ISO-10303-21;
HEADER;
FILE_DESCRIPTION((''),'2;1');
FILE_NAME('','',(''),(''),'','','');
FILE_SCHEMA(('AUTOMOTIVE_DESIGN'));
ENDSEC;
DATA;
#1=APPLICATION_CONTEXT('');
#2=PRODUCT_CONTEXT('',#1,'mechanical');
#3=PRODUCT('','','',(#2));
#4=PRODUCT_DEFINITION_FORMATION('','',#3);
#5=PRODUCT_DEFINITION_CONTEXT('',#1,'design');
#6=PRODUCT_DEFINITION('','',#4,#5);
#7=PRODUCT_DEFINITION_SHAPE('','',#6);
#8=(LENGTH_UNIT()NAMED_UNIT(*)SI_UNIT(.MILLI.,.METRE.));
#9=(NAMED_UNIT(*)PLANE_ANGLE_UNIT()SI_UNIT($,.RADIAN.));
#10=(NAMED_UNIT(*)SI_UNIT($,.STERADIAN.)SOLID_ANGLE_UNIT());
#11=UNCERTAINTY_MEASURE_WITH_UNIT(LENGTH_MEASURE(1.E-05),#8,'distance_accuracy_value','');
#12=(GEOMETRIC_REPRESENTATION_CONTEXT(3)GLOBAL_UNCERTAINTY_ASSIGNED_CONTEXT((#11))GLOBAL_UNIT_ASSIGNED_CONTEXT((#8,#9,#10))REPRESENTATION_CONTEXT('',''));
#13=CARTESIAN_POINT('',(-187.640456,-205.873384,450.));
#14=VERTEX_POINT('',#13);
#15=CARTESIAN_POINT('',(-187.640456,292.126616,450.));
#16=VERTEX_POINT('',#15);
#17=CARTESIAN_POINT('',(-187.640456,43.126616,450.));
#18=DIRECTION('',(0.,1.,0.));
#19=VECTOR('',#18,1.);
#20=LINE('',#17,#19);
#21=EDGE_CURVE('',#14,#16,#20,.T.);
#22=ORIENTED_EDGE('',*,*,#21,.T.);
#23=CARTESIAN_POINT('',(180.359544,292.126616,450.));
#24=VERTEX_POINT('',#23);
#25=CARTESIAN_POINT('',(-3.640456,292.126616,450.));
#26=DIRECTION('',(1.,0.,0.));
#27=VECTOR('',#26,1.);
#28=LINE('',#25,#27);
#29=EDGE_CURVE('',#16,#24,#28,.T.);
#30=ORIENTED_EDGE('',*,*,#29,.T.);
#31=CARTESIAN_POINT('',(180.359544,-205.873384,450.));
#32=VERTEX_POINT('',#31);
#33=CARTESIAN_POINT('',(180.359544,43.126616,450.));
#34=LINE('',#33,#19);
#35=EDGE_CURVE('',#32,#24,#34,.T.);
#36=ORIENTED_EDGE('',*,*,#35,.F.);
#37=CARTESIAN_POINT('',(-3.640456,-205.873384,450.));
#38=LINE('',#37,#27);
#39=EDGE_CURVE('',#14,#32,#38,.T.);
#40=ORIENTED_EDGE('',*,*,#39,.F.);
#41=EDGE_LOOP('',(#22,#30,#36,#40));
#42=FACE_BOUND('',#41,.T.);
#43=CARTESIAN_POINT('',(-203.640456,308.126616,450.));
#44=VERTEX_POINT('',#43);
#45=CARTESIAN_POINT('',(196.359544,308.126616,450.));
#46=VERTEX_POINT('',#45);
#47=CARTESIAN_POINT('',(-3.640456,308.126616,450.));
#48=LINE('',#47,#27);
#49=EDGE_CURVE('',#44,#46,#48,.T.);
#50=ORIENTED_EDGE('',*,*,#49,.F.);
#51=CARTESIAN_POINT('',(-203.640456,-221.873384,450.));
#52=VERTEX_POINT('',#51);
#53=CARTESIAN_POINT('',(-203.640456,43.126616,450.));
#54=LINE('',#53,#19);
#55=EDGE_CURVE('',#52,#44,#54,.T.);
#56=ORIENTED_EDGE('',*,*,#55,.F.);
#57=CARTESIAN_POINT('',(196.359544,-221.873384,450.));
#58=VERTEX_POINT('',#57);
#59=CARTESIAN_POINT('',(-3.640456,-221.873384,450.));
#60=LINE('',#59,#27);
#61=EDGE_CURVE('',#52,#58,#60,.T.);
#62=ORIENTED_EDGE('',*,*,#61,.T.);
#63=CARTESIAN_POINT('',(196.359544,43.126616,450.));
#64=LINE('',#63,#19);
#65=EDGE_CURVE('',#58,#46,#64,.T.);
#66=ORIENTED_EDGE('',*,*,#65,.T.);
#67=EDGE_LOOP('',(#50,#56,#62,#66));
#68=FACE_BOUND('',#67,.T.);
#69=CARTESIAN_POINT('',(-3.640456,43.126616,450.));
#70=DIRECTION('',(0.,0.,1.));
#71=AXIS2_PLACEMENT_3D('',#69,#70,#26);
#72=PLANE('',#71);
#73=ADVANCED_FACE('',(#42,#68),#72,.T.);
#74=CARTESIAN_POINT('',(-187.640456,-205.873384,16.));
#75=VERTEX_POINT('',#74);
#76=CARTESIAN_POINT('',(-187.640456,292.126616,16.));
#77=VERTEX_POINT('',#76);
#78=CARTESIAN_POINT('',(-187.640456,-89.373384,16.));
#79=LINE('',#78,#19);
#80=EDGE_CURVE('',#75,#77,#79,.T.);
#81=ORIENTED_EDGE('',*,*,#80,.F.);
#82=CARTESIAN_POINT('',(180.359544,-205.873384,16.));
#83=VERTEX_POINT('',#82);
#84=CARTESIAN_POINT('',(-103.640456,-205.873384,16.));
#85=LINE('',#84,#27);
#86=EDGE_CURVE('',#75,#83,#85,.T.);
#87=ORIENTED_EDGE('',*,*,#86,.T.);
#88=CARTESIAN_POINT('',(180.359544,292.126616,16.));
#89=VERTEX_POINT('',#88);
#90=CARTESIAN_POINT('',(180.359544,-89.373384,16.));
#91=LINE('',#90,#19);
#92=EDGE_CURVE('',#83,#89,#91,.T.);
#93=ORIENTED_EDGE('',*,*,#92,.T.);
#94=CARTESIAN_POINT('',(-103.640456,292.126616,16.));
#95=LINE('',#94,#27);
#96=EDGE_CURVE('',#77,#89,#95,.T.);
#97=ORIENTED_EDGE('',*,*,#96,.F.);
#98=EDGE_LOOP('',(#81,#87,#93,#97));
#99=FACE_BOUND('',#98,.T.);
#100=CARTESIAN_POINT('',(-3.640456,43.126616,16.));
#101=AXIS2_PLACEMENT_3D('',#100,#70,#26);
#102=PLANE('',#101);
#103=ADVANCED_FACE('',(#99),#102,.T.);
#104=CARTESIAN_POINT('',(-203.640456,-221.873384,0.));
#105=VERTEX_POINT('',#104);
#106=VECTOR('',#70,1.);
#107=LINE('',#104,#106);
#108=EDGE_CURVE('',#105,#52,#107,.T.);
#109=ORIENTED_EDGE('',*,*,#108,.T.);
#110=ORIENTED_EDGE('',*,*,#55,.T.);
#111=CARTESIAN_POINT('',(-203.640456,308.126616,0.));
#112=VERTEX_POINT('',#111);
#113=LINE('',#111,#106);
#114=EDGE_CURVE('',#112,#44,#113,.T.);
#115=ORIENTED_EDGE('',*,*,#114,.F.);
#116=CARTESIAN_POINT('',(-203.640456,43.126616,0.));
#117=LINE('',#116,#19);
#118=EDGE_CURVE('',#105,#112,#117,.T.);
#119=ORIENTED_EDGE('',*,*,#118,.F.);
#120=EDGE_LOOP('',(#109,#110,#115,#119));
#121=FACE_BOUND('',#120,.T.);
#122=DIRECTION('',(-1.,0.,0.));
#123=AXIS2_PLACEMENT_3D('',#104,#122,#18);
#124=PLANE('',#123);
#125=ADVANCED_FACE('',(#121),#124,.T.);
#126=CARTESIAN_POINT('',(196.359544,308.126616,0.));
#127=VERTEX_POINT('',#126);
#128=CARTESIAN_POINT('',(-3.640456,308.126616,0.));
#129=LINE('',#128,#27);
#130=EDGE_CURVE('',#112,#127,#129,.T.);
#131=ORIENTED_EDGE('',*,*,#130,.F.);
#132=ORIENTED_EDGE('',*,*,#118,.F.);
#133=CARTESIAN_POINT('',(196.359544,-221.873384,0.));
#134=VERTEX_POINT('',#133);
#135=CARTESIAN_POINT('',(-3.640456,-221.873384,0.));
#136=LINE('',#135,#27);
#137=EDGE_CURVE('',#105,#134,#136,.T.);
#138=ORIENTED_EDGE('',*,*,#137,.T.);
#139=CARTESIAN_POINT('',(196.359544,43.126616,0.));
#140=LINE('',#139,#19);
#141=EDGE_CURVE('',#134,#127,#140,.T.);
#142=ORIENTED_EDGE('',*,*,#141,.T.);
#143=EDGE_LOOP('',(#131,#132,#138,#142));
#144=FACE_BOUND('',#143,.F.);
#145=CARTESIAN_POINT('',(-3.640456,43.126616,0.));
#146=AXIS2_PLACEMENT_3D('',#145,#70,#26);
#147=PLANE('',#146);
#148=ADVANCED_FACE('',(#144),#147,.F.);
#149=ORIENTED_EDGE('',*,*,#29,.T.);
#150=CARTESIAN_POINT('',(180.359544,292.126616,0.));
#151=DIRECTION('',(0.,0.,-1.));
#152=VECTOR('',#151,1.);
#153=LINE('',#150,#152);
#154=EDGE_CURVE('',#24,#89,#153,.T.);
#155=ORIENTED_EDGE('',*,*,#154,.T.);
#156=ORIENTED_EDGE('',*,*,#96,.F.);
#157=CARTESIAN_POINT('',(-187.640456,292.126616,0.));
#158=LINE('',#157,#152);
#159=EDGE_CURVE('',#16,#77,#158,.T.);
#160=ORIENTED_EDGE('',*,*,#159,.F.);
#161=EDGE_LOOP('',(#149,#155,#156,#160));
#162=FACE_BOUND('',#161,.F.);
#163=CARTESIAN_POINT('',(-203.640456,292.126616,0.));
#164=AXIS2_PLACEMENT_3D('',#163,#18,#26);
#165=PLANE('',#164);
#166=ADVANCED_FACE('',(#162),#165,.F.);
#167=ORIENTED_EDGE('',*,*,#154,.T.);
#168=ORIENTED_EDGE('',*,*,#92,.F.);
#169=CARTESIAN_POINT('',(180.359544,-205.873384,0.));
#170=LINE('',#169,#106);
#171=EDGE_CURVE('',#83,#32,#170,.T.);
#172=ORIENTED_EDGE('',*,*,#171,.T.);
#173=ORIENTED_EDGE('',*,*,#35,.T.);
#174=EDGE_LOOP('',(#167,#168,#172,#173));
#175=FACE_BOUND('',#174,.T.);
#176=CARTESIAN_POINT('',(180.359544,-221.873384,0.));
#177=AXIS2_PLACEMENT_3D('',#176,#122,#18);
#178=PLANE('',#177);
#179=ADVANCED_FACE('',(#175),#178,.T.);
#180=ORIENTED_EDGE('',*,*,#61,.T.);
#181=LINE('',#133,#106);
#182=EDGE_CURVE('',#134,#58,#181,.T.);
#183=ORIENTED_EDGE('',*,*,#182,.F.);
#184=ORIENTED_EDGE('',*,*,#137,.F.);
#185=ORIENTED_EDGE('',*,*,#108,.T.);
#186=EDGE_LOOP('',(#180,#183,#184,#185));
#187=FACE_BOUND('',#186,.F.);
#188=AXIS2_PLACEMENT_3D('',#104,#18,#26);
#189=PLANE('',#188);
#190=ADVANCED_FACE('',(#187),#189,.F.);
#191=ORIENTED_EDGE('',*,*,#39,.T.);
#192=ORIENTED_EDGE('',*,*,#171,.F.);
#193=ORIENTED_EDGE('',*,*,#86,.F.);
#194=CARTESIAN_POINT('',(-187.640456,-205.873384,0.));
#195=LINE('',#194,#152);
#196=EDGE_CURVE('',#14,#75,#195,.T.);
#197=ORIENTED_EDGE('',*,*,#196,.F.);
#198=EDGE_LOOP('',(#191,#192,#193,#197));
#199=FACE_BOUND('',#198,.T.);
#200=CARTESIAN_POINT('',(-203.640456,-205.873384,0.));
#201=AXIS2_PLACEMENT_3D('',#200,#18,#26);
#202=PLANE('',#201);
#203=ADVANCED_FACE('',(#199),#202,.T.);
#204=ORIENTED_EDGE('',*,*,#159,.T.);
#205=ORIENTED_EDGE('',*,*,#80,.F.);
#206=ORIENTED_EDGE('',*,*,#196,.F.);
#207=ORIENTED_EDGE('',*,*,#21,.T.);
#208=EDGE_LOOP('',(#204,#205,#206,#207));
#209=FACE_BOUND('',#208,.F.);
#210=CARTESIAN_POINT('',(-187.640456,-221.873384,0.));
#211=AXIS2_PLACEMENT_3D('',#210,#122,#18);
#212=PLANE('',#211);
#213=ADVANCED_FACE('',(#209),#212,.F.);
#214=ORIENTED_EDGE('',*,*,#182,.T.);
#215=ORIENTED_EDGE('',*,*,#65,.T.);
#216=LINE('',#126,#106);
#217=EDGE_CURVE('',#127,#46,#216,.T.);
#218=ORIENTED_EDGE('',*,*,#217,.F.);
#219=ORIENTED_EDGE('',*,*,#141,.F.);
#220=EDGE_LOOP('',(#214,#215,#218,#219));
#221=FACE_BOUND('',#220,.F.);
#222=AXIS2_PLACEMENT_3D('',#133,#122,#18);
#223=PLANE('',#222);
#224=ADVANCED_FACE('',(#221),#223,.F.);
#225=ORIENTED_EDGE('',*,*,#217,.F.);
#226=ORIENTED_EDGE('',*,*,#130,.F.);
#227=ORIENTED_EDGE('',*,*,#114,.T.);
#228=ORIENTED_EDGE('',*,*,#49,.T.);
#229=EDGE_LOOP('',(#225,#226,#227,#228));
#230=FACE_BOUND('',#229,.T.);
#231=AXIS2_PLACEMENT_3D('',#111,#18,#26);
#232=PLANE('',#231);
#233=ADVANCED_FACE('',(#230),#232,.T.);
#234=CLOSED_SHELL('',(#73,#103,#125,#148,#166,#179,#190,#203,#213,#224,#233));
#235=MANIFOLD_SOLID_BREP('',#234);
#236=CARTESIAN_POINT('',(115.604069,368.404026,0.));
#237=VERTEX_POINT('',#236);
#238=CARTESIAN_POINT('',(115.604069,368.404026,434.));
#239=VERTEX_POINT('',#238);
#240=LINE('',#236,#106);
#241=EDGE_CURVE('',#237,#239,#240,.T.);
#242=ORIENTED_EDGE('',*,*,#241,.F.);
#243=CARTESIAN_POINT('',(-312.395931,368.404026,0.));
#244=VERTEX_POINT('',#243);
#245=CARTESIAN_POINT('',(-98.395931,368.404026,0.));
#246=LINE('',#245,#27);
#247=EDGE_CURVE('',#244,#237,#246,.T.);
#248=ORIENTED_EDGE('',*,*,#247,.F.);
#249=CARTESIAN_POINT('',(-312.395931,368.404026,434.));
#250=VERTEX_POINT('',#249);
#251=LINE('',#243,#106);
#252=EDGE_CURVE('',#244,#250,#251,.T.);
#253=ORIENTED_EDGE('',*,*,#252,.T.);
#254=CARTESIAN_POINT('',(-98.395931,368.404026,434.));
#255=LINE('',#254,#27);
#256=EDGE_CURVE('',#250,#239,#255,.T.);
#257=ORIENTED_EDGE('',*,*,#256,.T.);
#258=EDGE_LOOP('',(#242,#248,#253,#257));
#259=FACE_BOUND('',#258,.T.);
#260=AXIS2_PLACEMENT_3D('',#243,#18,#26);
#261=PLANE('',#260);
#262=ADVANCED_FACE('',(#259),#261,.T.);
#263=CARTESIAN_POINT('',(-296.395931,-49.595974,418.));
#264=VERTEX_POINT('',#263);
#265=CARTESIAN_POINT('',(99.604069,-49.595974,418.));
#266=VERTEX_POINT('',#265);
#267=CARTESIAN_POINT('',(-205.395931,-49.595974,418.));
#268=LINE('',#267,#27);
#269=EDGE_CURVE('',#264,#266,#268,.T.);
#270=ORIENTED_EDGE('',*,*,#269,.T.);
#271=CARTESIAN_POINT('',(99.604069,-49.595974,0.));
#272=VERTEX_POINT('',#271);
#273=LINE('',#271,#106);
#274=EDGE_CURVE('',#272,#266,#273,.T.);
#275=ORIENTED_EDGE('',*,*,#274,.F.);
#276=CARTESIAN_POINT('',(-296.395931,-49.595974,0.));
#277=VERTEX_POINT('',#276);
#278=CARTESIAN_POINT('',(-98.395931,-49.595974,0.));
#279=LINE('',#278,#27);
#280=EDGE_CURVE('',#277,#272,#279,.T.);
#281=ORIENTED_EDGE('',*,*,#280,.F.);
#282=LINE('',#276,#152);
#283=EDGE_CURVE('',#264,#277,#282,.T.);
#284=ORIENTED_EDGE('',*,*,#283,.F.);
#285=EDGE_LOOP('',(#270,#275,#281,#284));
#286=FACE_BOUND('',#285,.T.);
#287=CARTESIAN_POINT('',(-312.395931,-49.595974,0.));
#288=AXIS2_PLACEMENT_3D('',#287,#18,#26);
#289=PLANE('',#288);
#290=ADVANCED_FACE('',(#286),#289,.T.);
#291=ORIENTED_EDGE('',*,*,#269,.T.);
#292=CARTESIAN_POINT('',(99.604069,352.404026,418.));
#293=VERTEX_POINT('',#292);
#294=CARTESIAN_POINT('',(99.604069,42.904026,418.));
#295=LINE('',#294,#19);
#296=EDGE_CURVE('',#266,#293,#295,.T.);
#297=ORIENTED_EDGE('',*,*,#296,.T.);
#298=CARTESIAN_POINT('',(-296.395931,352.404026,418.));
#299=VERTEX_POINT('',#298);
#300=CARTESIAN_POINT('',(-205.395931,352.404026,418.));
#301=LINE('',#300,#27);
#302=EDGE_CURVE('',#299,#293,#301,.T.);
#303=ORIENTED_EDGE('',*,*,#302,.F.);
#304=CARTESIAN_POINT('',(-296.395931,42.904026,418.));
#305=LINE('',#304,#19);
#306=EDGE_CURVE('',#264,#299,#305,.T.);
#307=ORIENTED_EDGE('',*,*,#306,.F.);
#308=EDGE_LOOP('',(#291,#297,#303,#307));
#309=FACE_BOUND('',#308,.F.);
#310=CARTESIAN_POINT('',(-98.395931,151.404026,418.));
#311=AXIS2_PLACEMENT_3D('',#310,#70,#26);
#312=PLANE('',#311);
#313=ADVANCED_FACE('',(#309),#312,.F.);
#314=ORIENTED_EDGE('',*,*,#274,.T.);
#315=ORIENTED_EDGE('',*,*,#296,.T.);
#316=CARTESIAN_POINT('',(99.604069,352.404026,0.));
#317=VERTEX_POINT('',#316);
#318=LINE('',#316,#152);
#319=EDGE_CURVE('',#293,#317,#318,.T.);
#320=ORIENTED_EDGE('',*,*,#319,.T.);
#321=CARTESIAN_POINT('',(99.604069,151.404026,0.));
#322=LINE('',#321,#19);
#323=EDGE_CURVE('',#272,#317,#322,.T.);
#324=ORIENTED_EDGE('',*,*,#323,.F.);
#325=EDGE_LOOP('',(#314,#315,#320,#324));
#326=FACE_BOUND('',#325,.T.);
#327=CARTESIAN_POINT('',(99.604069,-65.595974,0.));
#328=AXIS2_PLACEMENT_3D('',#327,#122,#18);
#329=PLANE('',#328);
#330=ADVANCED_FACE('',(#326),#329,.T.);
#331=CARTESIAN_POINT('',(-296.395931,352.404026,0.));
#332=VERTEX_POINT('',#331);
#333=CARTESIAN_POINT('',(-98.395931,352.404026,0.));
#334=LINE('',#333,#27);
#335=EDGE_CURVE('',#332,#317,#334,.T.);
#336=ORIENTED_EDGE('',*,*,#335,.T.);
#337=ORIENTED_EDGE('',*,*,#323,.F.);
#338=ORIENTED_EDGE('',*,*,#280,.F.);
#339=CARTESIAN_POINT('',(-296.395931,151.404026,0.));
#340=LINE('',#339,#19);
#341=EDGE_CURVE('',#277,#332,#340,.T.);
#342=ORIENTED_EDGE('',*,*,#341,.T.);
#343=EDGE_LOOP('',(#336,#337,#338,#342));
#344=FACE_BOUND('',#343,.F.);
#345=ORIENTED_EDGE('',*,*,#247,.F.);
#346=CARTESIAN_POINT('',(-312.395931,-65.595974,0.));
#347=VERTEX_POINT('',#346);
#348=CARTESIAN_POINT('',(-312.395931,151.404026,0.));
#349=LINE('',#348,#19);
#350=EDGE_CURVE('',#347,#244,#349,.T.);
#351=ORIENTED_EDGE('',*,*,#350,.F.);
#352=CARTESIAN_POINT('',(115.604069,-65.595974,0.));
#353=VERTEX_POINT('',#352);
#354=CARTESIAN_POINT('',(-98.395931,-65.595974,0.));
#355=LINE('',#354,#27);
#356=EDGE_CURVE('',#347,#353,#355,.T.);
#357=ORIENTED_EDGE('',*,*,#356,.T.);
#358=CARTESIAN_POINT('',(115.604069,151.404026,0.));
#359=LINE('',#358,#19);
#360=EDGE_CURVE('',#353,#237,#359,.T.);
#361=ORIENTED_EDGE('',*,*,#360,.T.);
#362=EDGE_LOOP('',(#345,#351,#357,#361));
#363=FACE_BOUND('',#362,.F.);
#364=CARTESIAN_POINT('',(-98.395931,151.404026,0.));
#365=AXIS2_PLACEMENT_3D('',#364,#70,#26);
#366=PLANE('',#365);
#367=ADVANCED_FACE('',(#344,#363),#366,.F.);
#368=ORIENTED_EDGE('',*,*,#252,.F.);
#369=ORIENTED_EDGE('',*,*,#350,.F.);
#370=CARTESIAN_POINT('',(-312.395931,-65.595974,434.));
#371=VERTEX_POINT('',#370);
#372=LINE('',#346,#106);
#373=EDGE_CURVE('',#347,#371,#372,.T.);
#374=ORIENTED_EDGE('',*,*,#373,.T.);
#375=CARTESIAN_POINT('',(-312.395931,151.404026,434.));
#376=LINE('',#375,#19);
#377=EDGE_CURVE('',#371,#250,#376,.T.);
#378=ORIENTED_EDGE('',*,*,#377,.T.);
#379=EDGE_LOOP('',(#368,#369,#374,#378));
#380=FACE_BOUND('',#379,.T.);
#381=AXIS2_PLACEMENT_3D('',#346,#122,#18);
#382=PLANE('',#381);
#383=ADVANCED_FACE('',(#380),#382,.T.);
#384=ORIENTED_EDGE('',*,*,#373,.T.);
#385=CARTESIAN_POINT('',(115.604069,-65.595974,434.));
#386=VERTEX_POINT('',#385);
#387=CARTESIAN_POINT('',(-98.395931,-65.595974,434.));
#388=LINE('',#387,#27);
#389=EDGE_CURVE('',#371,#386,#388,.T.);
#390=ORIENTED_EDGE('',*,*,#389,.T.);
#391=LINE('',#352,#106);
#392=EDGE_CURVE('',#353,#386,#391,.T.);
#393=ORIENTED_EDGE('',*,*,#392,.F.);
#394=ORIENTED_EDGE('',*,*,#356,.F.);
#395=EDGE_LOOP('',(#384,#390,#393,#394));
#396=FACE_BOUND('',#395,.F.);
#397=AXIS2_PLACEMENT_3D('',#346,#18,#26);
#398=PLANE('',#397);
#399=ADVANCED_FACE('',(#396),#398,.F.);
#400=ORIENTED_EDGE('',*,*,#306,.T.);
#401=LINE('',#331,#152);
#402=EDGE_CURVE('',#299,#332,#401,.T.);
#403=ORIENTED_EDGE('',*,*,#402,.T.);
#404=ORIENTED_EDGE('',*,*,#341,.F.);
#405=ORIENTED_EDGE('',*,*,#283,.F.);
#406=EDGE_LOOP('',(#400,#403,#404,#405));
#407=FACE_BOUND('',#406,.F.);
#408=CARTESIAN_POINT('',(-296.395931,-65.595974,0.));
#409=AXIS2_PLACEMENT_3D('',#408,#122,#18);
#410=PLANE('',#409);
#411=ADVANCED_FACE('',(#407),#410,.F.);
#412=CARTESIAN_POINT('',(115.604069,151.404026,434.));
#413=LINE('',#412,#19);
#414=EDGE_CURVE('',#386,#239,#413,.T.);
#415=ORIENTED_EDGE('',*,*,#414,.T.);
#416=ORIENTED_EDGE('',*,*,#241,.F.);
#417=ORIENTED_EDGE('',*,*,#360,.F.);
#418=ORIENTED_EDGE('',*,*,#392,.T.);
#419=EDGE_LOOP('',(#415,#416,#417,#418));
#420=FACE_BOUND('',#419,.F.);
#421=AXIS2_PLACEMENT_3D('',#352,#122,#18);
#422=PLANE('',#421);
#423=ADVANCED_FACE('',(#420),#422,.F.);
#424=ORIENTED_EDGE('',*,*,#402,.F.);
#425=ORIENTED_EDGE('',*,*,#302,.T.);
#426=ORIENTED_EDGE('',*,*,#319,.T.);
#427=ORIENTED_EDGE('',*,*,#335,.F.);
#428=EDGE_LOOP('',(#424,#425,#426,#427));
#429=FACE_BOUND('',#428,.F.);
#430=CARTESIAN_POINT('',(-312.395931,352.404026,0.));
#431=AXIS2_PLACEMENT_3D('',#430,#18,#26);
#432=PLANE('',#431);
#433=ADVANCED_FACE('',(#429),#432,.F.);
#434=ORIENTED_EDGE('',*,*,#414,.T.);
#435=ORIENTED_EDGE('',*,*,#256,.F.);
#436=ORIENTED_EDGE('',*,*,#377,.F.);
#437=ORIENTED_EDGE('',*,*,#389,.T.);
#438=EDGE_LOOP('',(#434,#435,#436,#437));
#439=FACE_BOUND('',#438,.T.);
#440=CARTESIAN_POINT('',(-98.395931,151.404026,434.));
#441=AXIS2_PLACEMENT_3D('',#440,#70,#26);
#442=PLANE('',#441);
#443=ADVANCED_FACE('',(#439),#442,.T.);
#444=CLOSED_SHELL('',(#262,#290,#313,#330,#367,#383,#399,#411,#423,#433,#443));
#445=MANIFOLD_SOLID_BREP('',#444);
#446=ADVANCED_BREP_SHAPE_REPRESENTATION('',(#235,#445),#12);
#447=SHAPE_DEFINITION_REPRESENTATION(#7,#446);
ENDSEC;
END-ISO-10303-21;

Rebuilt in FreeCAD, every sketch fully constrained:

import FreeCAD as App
import Part
import Sketcher

V = App.Vector


def faces_at(feature, points):
    """Names of the faces that lie closest to the given points."""
    faces = feature.Shape.Faces
    near = lambda p: min(range(len(faces)), key=lambda i: faces[i].distToShape(Part.Vertex(*p))[0])
    return sorted({f"Face{near(p) + 1}" for p in points})

doc = App.newDocument("Part")
body = doc.addObject("PartDesign::Body", "Body")

# Sketch on XY plane
sketch1 = body.newObject("Sketcher::SketchObject", "Sketch")
sketch1.AttachmentSupport = (doc.getObject("XY_Plane"), [""])
sketch1.MapMode = "FlatFace"
sketch1.addGeometry(Part.LineSegment(V(-204, 308, 0), V(-204, -222, 0)), False)
sketch1.addGeometry(Part.LineSegment(V(-204, -222, 0), V(196, -222, 0)), False)
sketch1.addGeometry(Part.LineSegment(V(196, -222, 0), V(196, 308, 0)), False)
sketch1.addGeometry(Part.LineSegment(V(196, 308, 0), V(-204, 308, 0)), False)
sketch1.addConstraint(Sketcher.Constraint("Coincident", 0, 2, 1, 1))
sketch1.addConstraint(Sketcher.Constraint("Coincident", 1, 2, 2, 1))
sketch1.addConstraint(Sketcher.Constraint("Coincident", 2, 2, 3, 1))
sketch1.addConstraint(Sketcher.Constraint("Coincident", 3, 2, 0, 1))
sketch1.addConstraint(Sketcher.Constraint("Vertical", 0))
sketch1.addConstraint(Sketcher.Constraint("Horizontal", 1))
sketch1.addConstraint(Sketcher.Constraint("Vertical", 2))
sketch1.addConstraint(Sketcher.Constraint("Horizontal", 3))
sketch1.addConstraint(Sketcher.Constraint("DistanceX", 1, 1, 1, 2, 400.0))
sketch1.addConstraint(Sketcher.Constraint("DistanceY", 0, 2, 0, 1, 530.0))
sketch1.addConstraint(Sketcher.Constraint("DistanceX", 0, 2, -1, 1, 203.640456))
sketch1.addConstraint(Sketcher.Constraint("DistanceY", 0, 2, -1, 1, 221.873384))
pad1 = body.newObject("PartDesign::Pad", "Pad")
pad1.Profile = sketch1
pad1.Length = 450
doc.recompute()

thickness = body.newObject("PartDesign::Thickness", "Thickness")
thickness.Base = (pad1, faces_at(pad1, [(-3.64, 43.127, 450)]))
thickness.Value = 16
thickness.Reversed = True
thickness.Join = "Arc"
body2 = doc.addObject("PartDesign::Body", "Body001")

# Sketch on XY plane
sketch2 = body2.newObject("Sketcher::SketchObject", "Sketch001")
sketch2.AttachmentSupport = (doc.getObject("XY_Plane001"), [""])
sketch2.MapMode = "FlatFace"
sketch2.addGeometry(Part.LineSegment(V(-312, 368, 0), V(-312, -66, 0)), False)
sketch2.addGeometry(Part.LineSegment(V(-312, -66, 0), V(116, -66, 0)), False)
sketch2.addGeometry(Part.LineSegment(V(116, -66, 0), V(116, 368, 0)), False)
sketch2.addGeometry(Part.LineSegment(V(116, 368, 0), V(-312, 368, 0)), False)
sketch2.addConstraint(Sketcher.Constraint("Coincident", 0, 2, 1, 1))
sketch2.addConstraint(Sketcher.Constraint("Coincident", 1, 2, 2, 1))
sketch2.addConstraint(Sketcher.Constraint("Coincident", 2, 2, 3, 1))
sketch2.addConstraint(Sketcher.Constraint("Coincident", 3, 2, 0, 1))
sketch2.addConstraint(Sketcher.Constraint("Vertical", 0))
sketch2.addConstraint(Sketcher.Constraint("Horizontal", 1))
sketch2.addConstraint(Sketcher.Constraint("Vertical", 2))
sketch2.addConstraint(Sketcher.Constraint("Horizontal", 3))
sketch2.addConstraint(Sketcher.Constraint("DistanceX", 1, 1, 1, 2, 428.0))
sketch2.addConstraint(Sketcher.Constraint("DistanceY", 0, 2, 0, 1, 434.0))
sketch2.addConstraint(Sketcher.Constraint("DistanceX", 0, 2, -1, 1, 312.395931))
sketch2.addConstraint(Sketcher.Constraint("DistanceY", 0, 2, -1, 1, 65.595974))
pad2 = body2.newObject("PartDesign::Pad", "Pad001")
pad2.Profile = sketch2
pad2.Length = 434
doc.recompute()

thickness2 = body2.newObject("PartDesign::Thickness", "Thickness001")
thickness2.Base = (pad2, faces_at(pad2, [(-98.396, 151.404, 0)]))
thickness2.Value = 16
thickness2.Reversed = True
thickness2.Join = "Arc"

doc.recompute()
